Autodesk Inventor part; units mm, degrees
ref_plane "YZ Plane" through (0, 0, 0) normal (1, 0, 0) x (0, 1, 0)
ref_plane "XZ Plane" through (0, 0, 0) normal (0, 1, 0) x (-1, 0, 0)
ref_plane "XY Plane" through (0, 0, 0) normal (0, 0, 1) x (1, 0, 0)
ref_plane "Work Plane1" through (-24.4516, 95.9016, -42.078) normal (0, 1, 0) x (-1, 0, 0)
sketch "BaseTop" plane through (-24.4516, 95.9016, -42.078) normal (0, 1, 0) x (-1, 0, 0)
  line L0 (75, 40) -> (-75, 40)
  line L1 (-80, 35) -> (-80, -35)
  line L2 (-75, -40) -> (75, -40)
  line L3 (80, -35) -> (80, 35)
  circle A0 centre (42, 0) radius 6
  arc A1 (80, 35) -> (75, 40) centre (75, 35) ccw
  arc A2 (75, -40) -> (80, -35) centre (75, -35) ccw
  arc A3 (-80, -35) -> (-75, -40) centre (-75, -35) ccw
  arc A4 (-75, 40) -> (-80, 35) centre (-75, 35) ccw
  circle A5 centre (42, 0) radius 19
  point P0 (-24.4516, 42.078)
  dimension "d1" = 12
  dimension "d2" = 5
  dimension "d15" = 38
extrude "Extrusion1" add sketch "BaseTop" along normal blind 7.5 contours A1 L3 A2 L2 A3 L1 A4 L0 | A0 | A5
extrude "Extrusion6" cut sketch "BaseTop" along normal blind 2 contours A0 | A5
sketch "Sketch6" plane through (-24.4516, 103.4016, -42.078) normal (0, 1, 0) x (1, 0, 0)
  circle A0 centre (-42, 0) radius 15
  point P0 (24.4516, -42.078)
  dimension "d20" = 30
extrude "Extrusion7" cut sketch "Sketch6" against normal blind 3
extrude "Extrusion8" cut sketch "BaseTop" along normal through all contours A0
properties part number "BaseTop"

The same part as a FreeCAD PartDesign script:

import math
import FreeCAD as App
import Part
import Sketcher

V = App.Vector

doc = App.newDocument("Part")
body = doc.addObject("PartDesign::Body", "Body")

# Sketch on XZ plane
sketch1 = doc.addObject("Sketcher::SketchObject", "Sketch")
body.addObject(sketch1)
sketch1.AttachmentSupport = (doc.XZ_Plane, [""])
sketch1.MapMode = "FlatFace"
sketch1.AttachmentOffset = App.Placement(V(0, 0, -95.9016), App.Rotation())
sketch1.addGeometry(Part.ArcOfCircle(Part.Circle(V(-99, -7, 0), V(0, 0, 1), 5), math.radians(90), math.radians(180)), False)
sketch1.addGeometry(Part.LineSegment(V(-99, -2, 0), V(51, -2, 0)), False)
sketch1.addGeometry(Part.ArcOfCircle(Part.Circle(V(51, -7, 0), V(0, 0, 1), 5), math.radians(0), math.radians(90)), False)
sketch1.addGeometry(Part.LineSegment(V(56, -7, 0), V(56, -77, 0)), False)
sketch1.addGeometry(Part.ArcOfCircle(Part.Circle(V(51, -77, 0), V(0, 0, 1), 5), math.radians(-90), math.radians(0)), False)
sketch1.addGeometry(Part.LineSegment(V(51, -82, 0), V(-99, -82, 0)), False)
sketch1.addGeometry(Part.ArcOfCircle(Part.Circle(V(-99, -77, 0), V(0, 0, 1), 5), math.radians(180), math.radians(270)), False)
sketch1.addGeometry(Part.LineSegment(V(-104, -77, 0), V(-104, -7, 0)), False)
sketch1.addConstraint(Sketcher.Constraint("Tangent", 0, 1, 1, 1))
sketch1.addConstraint(Sketcher.Constraint("Tangent", 1, 2, 2, 2))
sketch1.addConstraint(Sketcher.Constraint("Tangent", 2, 1, 3, 1))
sketch1.addConstraint(Sketcher.Constraint("Tangent", 3, 2, 4, 2))
sketch1.addConstraint(Sketcher.Constraint("Tangent", 4, 1, 5, 1))
sketch1.addConstraint(Sketcher.Constraint("Tangent", 5, 2, 6, 2))
sketch1.addConstraint(Sketcher.Constraint("Tangent", 6, 1, 7, 1))
sketch1.addConstraint(Sketcher.Constraint("Tangent", 7, 2, 0, 2))
sketch1.addConstraint(Sketcher.Constraint("Horizontal", 1))
sketch1.addConstraint(Sketcher.Constraint("Vertical", 3))
sketch1.addConstraint(Sketcher.Constraint("Horizontal", 5))
sketch1.addConstraint(Sketcher.Constraint("Vertical", 7))
sketch1.addConstraint(Sketcher.Constraint("Equal", 0, 2))
sketch1.addConstraint(Sketcher.Constraint("Equal", 2, 4))
sketch1.addConstraint(Sketcher.Constraint("Equal", 4, 6))
sketch1.addConstraint(Sketcher.Constraint("Radius", 0, 5.0))
sketch1.addConstraint(Sketcher.Constraint("DistanceX", 1, 1, 1, 2, 150.0))
sketch1.addConstraint(Sketcher.Constraint("DistanceY", 3, 2, 3, 1, 70.0))
sketch1.addConstraint(Sketcher.Constraint("DistanceY", 0, 3, -1, 1, 7.078))
sketch1.addConstraint(Sketcher.Constraint("DistanceX", 0, 3, -1, 1, 99.4516))
pad1 = doc.addObject("PartDesign::Pad", "Pad")
body.addObject(pad1)
pad1.Profile = sketch1
pad1.Length = 7.5
pad1.Reversed = True

# Sketch on XZ plane
sketch2 = doc.addObject("Sketcher::SketchObject", "Sketch001")
body.addObject(sketch2)
sketch2.AttachmentSupport = (doc.XZ_Plane, [""])
sketch2.MapMode = "FlatFace"
sketch2.AttachmentOffset = App.Placement(V(0, 0, -95.9016), App.Rotation())
sketch2.addGeometry(Part.Circle(V(-66, -42, 0), V(0, 0, 1), 19), False)
sketch2.addConstraint(Sketcher.Constraint("Diameter", 0, 38.0))
sketch2.addConstraint(Sketcher.Constraint("DistanceY", 0, 3, -1, 1, 42.078))
sketch2.addConstraint(Sketcher.Constraint("DistanceX", 0, 3, -1, 1, 66.4516))
pocket1 = doc.addObject("PartDesign::Pocket", "Pocket")
body.addObject(pocket1)
pocket1.Profile = sketch2
pocket1.Length = 2

# Sketch on XZ plane
sketch3 = doc.addObject("Sketcher::SketchObject", "Sketch002")
body.addObject(sketch3)
sketch3.AttachmentSupport = (doc.XZ_Plane, [""])
sketch3.MapMode = "FlatFace"
sketch3.AttachmentOffset = App.Placement(V(0, 0, -103.4016), App.Rotation())
sketch3.addGeometry(Part.Circle(V(-66, -42, 0), V(0, 0, 1), 15), False)
sketch3.addConstraint(Sketcher.Constraint("Diameter", 0, 30.0))
sketch3.addConstraint(Sketcher.Constraint("DistanceY", 0, 3, -1, 1, 42.078))
sketch3.addConstraint(Sketcher.Constraint("DistanceX", 0, 3, -1, 1, 66.4516))
pocket2 = doc.addObject("PartDesign::Pocket", "Pocket001")
body.addObject(pocket2)
pocket2.Profile = sketch3
pocket2.Length = 3
pocket2.Reversed = True

# Sketch on XZ plane
sketch4 = doc.addObject("Sketcher::SketchObject", "Sketch003")
body.addObject(sketch4)
sketch4.AttachmentSupport = (doc.XZ_Plane, [""])
sketch4.MapMode = "FlatFace"
sketch4.AttachmentOffset = App.Placement(V(0, 0, -95.9016), App.Rotation())
sketch4.addGeometry(Part.Circle(V(-66, -42, 0), V(0, 0, 1), 6), False)
sketch4.addConstraint(Sketcher.Constraint("Diameter", 0, 12.0))
sketch4.addConstraint(Sketcher.Constraint("DistanceY", 0, 3, -1, 1, 42.078))
sketch4.addConstraint(Sketcher.Constraint("DistanceX", 0, 3, -1, 1, 66.4516))
pocket3 = doc.addObject("PartDesign::Pocket", "Pocket002")
body.addObject(pocket3)
pocket3.Profile = sketch4
pocket3.Type = "ThroughAll"

doc.recompute()
